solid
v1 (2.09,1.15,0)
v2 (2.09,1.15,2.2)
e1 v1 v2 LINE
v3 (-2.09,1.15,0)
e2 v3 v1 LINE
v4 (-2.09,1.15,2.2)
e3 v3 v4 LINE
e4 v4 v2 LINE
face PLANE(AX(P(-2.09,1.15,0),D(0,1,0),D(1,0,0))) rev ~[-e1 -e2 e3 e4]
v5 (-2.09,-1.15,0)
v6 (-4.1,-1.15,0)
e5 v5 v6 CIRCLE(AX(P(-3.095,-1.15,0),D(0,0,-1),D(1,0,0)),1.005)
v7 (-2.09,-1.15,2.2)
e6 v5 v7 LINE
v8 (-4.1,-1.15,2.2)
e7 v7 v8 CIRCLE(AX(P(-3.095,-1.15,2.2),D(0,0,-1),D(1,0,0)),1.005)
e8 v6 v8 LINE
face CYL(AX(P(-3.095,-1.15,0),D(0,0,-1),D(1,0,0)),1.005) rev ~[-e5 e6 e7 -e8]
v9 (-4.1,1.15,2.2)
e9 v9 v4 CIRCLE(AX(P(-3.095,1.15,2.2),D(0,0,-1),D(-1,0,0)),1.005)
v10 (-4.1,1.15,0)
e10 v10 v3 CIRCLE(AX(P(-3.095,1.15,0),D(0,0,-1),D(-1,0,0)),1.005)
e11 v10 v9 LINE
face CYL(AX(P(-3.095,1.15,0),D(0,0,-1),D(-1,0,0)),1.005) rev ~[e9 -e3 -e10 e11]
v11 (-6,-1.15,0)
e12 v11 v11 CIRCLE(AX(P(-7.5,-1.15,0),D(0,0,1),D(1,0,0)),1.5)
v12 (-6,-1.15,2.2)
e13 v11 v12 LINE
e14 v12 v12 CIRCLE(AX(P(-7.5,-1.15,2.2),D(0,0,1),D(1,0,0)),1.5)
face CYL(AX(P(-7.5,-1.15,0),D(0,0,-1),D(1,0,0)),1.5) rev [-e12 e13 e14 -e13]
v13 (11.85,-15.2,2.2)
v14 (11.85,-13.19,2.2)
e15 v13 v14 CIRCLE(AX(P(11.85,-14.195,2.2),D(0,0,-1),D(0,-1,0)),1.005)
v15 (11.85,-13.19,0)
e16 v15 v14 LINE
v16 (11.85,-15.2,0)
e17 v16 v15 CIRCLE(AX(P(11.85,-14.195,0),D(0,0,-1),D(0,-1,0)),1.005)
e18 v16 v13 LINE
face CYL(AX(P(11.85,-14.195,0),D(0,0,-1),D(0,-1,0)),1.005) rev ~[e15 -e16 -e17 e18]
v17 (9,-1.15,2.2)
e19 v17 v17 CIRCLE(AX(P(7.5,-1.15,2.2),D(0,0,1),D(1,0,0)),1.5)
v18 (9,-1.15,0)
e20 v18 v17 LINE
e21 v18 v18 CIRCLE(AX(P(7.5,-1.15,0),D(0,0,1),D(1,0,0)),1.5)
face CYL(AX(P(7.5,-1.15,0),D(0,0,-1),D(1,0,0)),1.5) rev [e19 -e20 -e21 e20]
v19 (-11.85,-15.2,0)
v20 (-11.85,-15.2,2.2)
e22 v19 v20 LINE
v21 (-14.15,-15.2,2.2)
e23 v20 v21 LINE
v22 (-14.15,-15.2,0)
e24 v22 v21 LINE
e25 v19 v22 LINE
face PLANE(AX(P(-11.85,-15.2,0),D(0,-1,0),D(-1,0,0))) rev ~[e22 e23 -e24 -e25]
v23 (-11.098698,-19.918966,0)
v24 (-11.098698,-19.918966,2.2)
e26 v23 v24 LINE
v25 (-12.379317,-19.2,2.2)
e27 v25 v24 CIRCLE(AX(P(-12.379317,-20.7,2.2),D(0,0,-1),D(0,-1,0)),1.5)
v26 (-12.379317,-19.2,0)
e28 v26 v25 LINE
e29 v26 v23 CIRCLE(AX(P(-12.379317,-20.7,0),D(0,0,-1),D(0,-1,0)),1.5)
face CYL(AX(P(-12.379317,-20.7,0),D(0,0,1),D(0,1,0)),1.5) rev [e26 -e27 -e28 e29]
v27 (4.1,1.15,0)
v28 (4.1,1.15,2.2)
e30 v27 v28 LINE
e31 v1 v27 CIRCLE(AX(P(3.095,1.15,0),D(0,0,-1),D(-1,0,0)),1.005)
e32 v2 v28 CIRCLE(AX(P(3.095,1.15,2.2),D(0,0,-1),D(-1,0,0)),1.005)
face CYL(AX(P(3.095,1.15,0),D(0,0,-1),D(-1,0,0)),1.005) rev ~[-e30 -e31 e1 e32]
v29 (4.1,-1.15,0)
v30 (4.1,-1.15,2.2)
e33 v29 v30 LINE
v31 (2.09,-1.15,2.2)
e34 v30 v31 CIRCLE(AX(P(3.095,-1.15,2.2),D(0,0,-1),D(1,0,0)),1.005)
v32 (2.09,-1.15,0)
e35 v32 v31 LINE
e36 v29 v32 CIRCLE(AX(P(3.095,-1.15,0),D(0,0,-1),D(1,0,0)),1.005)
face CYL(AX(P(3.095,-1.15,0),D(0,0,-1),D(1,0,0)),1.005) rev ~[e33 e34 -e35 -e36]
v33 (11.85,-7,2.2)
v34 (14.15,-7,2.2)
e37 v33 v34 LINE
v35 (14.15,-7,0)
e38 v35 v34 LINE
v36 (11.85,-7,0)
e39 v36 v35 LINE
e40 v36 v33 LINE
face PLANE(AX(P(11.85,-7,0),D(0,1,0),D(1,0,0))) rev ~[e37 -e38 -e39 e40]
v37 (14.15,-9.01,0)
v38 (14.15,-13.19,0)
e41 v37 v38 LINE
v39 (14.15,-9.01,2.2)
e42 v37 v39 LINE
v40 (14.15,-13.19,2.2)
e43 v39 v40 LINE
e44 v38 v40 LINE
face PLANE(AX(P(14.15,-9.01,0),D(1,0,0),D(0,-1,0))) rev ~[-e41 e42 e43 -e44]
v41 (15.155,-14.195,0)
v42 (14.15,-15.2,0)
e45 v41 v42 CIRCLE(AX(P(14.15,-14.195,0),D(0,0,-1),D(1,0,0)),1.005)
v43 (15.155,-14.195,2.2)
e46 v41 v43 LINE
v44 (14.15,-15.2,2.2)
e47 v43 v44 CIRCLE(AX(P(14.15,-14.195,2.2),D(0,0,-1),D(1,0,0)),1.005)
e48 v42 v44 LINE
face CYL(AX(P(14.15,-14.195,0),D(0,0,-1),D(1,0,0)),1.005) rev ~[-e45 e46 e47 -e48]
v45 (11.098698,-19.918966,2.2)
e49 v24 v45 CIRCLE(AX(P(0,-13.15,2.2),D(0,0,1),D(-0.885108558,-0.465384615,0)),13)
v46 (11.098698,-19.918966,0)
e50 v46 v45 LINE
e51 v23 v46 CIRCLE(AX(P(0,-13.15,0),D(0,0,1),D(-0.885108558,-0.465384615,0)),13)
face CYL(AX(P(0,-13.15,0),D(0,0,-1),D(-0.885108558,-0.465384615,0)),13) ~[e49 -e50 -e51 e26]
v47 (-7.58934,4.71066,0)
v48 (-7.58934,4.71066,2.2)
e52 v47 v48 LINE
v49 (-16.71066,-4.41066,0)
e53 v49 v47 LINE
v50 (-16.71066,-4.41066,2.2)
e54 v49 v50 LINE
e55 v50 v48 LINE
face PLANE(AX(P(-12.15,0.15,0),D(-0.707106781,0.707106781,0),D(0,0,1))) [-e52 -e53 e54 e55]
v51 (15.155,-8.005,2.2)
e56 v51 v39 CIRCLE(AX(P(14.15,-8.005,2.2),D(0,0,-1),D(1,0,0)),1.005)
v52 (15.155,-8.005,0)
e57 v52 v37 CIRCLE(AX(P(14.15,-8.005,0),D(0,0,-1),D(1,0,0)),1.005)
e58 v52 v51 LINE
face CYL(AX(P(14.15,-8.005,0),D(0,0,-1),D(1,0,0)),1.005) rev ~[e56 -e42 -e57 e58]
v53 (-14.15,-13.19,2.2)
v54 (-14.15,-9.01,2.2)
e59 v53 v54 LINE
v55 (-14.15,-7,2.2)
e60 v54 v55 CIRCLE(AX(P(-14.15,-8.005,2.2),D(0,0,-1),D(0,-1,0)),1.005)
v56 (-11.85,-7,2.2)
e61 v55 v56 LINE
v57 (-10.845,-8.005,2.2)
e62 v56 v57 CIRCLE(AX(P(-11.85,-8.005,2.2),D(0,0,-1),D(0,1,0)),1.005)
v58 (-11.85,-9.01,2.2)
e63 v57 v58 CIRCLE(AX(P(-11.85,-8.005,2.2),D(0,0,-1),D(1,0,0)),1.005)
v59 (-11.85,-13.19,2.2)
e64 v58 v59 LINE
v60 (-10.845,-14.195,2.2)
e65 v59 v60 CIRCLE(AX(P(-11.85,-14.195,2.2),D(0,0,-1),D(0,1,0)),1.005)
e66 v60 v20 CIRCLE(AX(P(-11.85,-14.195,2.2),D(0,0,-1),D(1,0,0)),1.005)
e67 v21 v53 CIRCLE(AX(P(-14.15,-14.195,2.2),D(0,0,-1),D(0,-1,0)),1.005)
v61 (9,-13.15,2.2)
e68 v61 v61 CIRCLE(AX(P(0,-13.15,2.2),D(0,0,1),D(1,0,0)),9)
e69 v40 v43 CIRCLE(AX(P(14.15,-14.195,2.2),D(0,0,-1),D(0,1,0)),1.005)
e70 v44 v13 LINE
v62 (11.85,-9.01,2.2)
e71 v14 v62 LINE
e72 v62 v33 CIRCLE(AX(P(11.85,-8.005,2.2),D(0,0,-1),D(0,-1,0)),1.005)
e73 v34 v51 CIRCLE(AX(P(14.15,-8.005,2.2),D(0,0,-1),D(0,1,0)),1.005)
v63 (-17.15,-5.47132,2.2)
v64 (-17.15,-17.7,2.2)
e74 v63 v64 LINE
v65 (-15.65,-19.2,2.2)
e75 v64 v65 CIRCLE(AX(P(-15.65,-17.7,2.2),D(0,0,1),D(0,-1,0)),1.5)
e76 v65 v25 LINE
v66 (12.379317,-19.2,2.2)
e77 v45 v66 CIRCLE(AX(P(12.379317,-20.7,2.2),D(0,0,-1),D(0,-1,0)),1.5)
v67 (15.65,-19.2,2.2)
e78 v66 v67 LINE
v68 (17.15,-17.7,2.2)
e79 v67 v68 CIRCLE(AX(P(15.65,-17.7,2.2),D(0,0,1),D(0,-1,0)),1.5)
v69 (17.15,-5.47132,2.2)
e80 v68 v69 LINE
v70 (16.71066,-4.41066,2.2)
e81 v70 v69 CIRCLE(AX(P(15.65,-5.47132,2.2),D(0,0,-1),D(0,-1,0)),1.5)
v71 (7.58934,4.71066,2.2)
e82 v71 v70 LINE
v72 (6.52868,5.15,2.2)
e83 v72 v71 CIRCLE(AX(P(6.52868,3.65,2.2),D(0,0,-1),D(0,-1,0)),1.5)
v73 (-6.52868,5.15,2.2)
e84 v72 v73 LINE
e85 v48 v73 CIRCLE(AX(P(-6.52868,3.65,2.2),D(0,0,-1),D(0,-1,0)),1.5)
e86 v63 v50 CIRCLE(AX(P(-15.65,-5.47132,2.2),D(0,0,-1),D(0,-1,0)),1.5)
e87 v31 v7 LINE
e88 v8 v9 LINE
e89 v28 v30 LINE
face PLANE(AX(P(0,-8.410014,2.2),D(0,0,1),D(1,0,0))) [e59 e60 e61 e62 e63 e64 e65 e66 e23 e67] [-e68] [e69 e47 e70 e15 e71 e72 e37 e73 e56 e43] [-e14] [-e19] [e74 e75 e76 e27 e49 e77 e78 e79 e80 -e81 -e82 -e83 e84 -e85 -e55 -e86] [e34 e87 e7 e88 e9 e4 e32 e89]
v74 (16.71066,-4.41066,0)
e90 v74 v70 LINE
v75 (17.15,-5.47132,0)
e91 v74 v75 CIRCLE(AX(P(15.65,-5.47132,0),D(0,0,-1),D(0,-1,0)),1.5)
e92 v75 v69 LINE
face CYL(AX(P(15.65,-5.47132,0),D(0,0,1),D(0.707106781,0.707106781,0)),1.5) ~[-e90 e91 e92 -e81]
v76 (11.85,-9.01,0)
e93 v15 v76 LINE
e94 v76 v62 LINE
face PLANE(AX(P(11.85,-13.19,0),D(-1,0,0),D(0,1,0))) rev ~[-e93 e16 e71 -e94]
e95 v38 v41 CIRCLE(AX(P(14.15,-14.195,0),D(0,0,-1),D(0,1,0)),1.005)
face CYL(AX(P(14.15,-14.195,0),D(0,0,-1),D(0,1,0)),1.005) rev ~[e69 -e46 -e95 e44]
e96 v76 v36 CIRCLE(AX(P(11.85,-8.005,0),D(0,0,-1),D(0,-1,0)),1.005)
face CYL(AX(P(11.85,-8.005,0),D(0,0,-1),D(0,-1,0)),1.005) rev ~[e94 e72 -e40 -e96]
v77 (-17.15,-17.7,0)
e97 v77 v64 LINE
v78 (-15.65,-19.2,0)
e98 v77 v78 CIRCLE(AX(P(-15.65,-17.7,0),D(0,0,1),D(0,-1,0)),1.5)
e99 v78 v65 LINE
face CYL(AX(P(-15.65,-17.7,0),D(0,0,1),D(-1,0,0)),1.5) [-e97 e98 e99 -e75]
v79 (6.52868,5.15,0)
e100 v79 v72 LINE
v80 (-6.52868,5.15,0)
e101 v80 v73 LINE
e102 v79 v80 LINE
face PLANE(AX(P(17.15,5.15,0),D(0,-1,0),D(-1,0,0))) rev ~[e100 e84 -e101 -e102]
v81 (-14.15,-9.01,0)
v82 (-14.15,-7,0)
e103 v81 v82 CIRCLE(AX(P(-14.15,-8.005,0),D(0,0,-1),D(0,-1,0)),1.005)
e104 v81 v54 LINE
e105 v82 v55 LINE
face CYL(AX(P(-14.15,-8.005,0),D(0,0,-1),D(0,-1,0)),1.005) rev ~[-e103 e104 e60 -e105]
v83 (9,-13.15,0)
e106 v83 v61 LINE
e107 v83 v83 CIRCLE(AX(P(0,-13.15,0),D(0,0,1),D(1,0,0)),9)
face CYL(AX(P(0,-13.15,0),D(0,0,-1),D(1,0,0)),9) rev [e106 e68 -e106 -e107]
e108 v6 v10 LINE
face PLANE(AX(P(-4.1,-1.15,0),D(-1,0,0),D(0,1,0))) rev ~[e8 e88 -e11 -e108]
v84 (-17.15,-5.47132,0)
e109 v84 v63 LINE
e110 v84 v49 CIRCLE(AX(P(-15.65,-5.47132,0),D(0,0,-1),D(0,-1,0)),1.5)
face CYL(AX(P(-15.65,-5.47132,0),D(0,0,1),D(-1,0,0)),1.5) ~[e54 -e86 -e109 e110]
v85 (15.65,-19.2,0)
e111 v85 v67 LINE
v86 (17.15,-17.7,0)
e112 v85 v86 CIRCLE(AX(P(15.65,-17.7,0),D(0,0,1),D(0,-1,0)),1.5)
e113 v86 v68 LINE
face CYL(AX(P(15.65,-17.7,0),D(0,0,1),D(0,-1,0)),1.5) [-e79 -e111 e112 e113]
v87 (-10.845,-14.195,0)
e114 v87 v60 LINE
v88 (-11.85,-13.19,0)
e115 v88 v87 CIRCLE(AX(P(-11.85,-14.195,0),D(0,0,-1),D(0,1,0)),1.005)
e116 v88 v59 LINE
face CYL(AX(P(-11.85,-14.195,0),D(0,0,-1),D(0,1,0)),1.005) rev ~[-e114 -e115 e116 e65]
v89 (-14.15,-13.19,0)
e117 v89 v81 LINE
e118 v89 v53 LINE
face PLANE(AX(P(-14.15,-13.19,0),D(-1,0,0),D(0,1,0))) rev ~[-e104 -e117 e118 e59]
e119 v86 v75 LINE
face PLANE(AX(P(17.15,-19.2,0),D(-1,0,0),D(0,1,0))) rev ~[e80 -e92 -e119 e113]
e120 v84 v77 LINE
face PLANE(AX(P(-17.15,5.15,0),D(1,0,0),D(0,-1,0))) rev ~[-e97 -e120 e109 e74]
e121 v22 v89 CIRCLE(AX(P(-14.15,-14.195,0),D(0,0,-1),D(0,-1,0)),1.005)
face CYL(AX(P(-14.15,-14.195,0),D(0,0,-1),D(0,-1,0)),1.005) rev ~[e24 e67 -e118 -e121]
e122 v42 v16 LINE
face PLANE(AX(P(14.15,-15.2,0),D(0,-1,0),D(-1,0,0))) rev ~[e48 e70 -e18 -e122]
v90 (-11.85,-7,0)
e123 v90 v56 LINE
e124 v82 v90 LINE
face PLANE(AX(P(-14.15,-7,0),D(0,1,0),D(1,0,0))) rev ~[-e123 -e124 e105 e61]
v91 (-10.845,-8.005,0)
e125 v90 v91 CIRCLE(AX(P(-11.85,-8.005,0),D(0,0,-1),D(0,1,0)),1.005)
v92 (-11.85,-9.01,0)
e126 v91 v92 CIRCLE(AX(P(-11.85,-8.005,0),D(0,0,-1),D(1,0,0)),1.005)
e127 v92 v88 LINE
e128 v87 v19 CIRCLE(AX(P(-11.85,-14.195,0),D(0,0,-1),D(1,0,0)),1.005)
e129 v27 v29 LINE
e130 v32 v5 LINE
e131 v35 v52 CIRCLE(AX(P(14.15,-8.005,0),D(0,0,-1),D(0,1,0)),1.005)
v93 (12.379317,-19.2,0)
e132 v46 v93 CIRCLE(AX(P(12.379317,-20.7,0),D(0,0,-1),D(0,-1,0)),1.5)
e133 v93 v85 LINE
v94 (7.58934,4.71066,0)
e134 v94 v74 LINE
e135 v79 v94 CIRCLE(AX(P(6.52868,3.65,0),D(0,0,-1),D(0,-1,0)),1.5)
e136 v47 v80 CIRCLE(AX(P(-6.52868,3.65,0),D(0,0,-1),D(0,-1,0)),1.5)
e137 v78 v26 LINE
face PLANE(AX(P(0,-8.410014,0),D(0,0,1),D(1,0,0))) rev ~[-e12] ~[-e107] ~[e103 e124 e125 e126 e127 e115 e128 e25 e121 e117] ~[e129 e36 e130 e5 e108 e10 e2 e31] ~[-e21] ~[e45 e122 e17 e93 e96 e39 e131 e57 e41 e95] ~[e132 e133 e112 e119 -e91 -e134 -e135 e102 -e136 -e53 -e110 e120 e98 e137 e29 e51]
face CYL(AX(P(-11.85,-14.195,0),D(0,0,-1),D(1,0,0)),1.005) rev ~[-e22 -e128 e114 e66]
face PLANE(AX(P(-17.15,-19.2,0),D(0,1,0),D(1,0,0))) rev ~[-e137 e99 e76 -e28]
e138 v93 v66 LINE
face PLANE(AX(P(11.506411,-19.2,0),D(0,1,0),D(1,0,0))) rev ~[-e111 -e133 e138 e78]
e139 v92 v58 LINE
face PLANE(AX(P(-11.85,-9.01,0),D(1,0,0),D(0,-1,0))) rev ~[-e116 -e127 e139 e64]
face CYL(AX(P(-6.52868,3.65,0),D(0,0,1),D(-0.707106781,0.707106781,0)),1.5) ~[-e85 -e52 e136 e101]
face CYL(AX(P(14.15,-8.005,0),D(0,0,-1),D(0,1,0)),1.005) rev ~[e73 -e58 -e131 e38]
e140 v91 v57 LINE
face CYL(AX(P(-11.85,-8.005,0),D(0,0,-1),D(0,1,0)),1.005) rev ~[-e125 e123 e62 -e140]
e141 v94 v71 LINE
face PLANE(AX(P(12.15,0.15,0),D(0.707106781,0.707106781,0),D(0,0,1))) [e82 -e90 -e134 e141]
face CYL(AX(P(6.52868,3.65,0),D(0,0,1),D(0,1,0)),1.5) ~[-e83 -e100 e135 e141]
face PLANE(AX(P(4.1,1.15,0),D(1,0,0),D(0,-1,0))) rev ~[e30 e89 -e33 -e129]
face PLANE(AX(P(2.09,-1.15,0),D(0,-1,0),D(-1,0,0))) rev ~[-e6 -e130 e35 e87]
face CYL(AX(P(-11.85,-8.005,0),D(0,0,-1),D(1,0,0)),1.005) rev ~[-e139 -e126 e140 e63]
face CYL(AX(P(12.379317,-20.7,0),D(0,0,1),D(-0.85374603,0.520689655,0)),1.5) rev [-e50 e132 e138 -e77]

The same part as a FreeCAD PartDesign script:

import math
import FreeCAD as App
import Part
import Sketcher


def edges_at(feature, points):
    """Names of the edges that pass closest to the given points."""
    edges = feature.Shape.Edges
    near = lambda p: min(range(len(edges)), key=lambda i: edges[i].distToShape(Part.Vertex(*p))[0])
    return sorted({f"Edge{near(p) + 1}" for p in points})

doc = App.newDocument("Part")
body = doc.addObject("PartDesign::Body", "Body")

sketch1 = body.newObject("Sketcher::SketchObject", "Sketch")
sketch1.AttachmentSupport = (doc.getObject("XY_Plane"), [""])
sketch1.MapMode = "FlatFace"
sketch1.addGeometry([
    Part.LineSegment(App.Vector(-17.15, -19.2, 0), App.Vector(-11.506411, -19.2, 0)),
    Part.ArcOfCircle(Part.Circle(App.Vector(0, -13.15, 0), App.Vector(0, 0, 1), 13), math.radians(-152.264883), math.radians(-27.735117)),
    Part.LineSegment(App.Vector(11.506411, -19.2, 0), App.Vector(17.15, -19.2, 0)),
    Part.LineSegment(App.Vector(17.15, -19.2, 0), App.Vector(17.15, 5.15, 0)),
    Part.LineSegment(App.Vector(17.15, 5.15, 0), App.Vector(-17.15, 5.15, 0)),
    Part.LineSegment(App.Vector(-17.15, 5.15, 0), App.Vector(-17.15, -19.2, 0)),
    Part.ArcOfCircle(Part.Circle(App.Vector(-11.85, -14.195, 0), App.Vector(0, 0, 1), 1.005), math.radians(0), math.radians(90)),
    Part.ArcOfCircle(Part.Circle(App.Vector(-11.85, -14.195, 0), App.Vector(0, 0, 1), 1.005), math.radians(-90), math.radians(0)),
    Part.LineSegment(App.Vector(-11.85, -15.2, 0), App.Vector(-14.15, -15.2, 0)),
    Part.ArcOfCircle(Part.Circle(App.Vector(-14.15, -14.195, 0), App.Vector(0, 0, 1), 1.005), math.radians(90), math.radians(270)),
    Part.LineSegment(App.Vector(-14.15, -13.19, 0), App.Vector(-14.15, -9.01, 0)),
    Part.ArcOfCircle(Part.Circle(App.Vector(-14.15, -8.005, 0), App.Vector(0, 0, 1), 1.005), math.radians(90), math.radians(270)),
    Part.LineSegment(App.Vector(-14.15, -7, 0), App.Vector(-11.85, -7, 0)),
    Part.ArcOfCircle(Part.Circle(App.Vector(-11.85, -8.005, 0), App.Vector(0, 0, 1), 1.005), math.radians(0), math.radians(90)),
    Part.ArcOfCircle(Part.Circle(App.Vector(-11.85, -8.005, 0), App.Vector(0, 0, 1), 1.005), math.radians(-90), math.radians(0)),
    Part.LineSegment(App.Vector(-11.85, -9.01, 0), App.Vector(-11.85, -13.19, 0)),
    Part.Circle(App.Vector(0, -13.15, 0), App.Vector(0, 0, 1), 9),
    Part.LineSegment(App.Vector(11.85, -13.19, 0), App.Vector(11.85, -9.01, 0)),
    Part.ArcOfCircle(Part.Circle(App.Vector(11.85, -8.005, 0), App.Vector(0, 0, 1), 1.005), math.radians(90), math.radians(270)),
    Part.LineSegment(App.Vector(11.85, -7, 0), App.Vector(14.15, -7, 0)),
    Part.ArcOfCircle(Part.Circle(App.Vector(14.15, -8.005, 0), App.Vector(0, 0, 1), 1.005), math.radians(0), math.radians(90)),
    Part.ArcOfCircle(Part.Circle(App.Vector(14.15, -8.005, 0), App.Vector(0, 0, 1), 1.005), math.radians(-90), math.radians(0)),
    Part.LineSegment(App.Vector(14.15, -9.01, 0), App.Vector(14.15, -13.19, 0)),
    Part.ArcOfCircle(Part.Circle(App.Vector(14.15, -14.195, 0), App.Vector(0, 0, 1), 1.005), math.radians(0), math.radians(90)),
    Part.ArcOfCircle(Part.Circle(App.Vector(14.15, -14.195, 0), App.Vector(0, 0, 1), 1.005), math.radians(-90), math.radians(0)),
    Part.LineSegment(App.Vector(14.15, -15.2, 0), App.Vector(11.85, -15.2, 0)),
    Part.ArcOfCircle(Part.Circle(App.Vector(11.85, -14.195, 0), App.Vector(0, 0, 1), 1.005), math.radians(90), math.radians(270)),
    Part.Circle(App.Vector(-7.5, -1.15, 0), App.Vector(0, 0, 1), 1.5),
    Part.Circle(App.Vector(7.5, -1.15, 0), App.Vector(0, 0, 1), 1.5),
    Part.ArcOfCircle(Part.Circle(App.Vector(3.095, -1.15, 0), App.Vector(0, 0, 1), 1.005), math.radians(180), math.radians(360)),
    Part.LineSegment(App.Vector(2.09, -1.15, 0), App.Vector(-2.09, -1.15, 0)),
    Part.ArcOfCircle(Part.Circle(App.Vector(-3.095, -1.15, 0), App.Vector(0, 0, 1), 1.005), math.radians(180), math.radians(360)),
    Part.LineSegment(App.Vector(-4.1, -1.15, 0), App.Vector(-4.1, 1.15, 0)),
    Part.ArcOfCircle(Part.Circle(App.Vector(-3.095, 1.15, 0), App.Vector(0, 0, 1), 1.005), math.radians(0), math.radians(180)),
    Part.LineSegment(App.Vector(-2.09, 1.15, 0), App.Vector(2.09, 1.15, 0)),
    Part.ArcOfCircle(Part.Circle(App.Vector(3.095, 1.15, 0), App.Vector(0, 0, 1), 1.005), math.radians(0), math.radians(180)),
    Part.LineSegment(App.Vector(4.1, 1.15, 0), App.Vector(4.1, -1.15, 0)),
], False)
sketch1.addConstraint([
    Sketcher.Constraint("Coincident", 0, 2, 1, 1),
    Sketcher.Constraint("Coincident", 1, 2, 2, 1),
    Sketcher.Constraint("Coincident", 2, 2, 3, 1),
    Sketcher.Constraint("Coincident", 3, 2, 4, 1),
    Sketcher.Constraint("Coincident", 4, 2, 5, 1),
    Sketcher.Constraint("Coincident", 5, 2, 0, 1),
    Sketcher.Constraint("Tangent", 6, 1, 7, 2),
    Sketcher.Constraint("Tangent", 7, 1, 8, 1),
    Sketcher.Constraint("Tangent", 8, 2, 9, 2),
    Sketcher.Constraint("Coincident", 9, 1, 10, 1),
    Sketcher.Constraint("Coincident", 10, 2, 11, 2),
    Sketcher.Constraint("Tangent", 11, 1, 12, 1),
    Sketcher.Constraint("Tangent", 12, 2, 13, 2),
    Sketcher.Constraint("Tangent", 13, 1, 14, 2),
    Sketcher.Constraint("Coincident", 14, 1, 15, 1),
    Sketcher.Constraint("Coincident", 15, 2, 6, 2),
    Sketcher.Constraint("Coincident", 17, 2, 18, 2),
    Sketcher.Constraint("Tangent", 18, 1, 19, 1),
    Sketcher.Constraint("Tangent", 19, 2, 20, 2),
    Sketcher.Constraint("Tangent", 20, 1, 21, 2),
    Sketcher.Constraint("Coincident", 21, 1, 22, 1),
    Sketcher.Constraint("Coincident", 22, 2, 23, 2),
    Sketcher.Constraint("Tangent", 23, 1, 24, 2),
    Sketcher.Constraint("Tangent", 24, 1, 25, 1),
    Sketcher.Constraint("Tangent", 25, 2, 26, 2),
    Sketcher.Constraint("Coincident", 26, 1, 17, 1),
    Sketcher.Constraint("Coincident", 29, 1, 30, 1),
    Sketcher.Constraint("Coincident", 30, 2, 31, 2),
    Sketcher.Constraint("Tangent", 31, 1, 32, 1),
    Sketcher.Constraint("Tangent", 32, 2, 33, 2),
    Sketcher.Constraint("Coincident", 33, 1, 34, 1),
    Sketcher.Constraint("Coincident", 34, 2, 35, 2),
    Sketcher.Constraint("Tangent", 35, 1, 36, 1),
    Sketcher.Constraint("Tangent", 36, 2, 29, 2),
    Sketcher.Constraint("Horizontal", 0),
    Sketcher.Constraint("Horizontal", 2),
    Sketcher.Constraint("Vertical", 3),
    Sketcher.Constraint("Horizontal", 4),
    Sketcher.Constraint("Vertical", 5),
    Sketcher.Constraint("Horizontal", 8),
    Sketcher.Constraint("Vertical", 10),
    Sketcher.Constraint("Horizontal", 12),
    Sketcher.Constraint("Vertical", 15),
    Sketcher.Constraint("Vertical", 17),
    Sketcher.Constraint("Horizontal", 19),
    Sketcher.Constraint("Vertical", 22),
    Sketcher.Constraint("Horizontal", 25),
    Sketcher.Constraint("Horizontal", 30),
    Sketcher.Constraint("Vertical", 32),
    Sketcher.Constraint("Horizontal", 34),
    Sketcher.Constraint("Vertical", 36),
    Sketcher.Constraint("Coincident", 16, 3, 1, 3),
    Sketcher.Constraint("Equal", 6, 7),
    Sketcher.Constraint("Equal", 7, 9),
    Sketcher.Constraint("Equal", 9, 11),
    Sketcher.Constraint("Equal", 11, 13),
    Sketcher.Constraint("Equal", 13, 14),
    Sketcher.Constraint("Equal", 14, 18),
    Sketcher.Constraint("Equal", 18, 20),
    Sketcher.Constraint("Equal", 20, 21),
    Sketcher.Constraint("Equal", 21, 23),
    Sketcher.Constraint("Equal", 23, 24),
    Sketcher.Constraint("Equal", 24, 26),
    Sketcher.Constraint("Equal", 27, 28),
    Sketcher.Constraint("Equal", 26, 29),
    Sketcher.Constraint("Equal", 29, 31),
    Sketcher.Constraint("Equal", 31, 33),
    Sketcher.Constraint("Equal", 33, 35),
    Sketcher.Constraint("Symmetric", 29, 3, 33, 3, -1, 1),
    Sketcher.Constraint("Symmetric", 13, 3, 18, 3, -2),
    Sketcher.Constraint("Symmetric", 9, 3, 23, 3, -2),
    Sketcher.Constraint("Symmetric", 27, 3, 28, 3, -2),
    Sketcher.Constraint("Symmetric", 0, 2, 1, 2, -2),
    Sketcher.Constraint("Horizontal", 28, 3, 29, 3),
    Sketcher.Constraint("Horizontal", 29, 3, 31, 3),
    Sketcher.Constraint("Horizontal", 33, 3, 35, 3),
    Sketcher.Constraint("Horizontal", 26, 3, 6, 1),
    Sketcher.Constraint("Horizontal", 21, 3, 13, 1),
    Sketcher.Constraint("Horizontal", 13, 1, 20, 1),
    Sketcher.Constraint("Horizontal", 6, 1, 23, 1),
    Sketcher.Constraint("Horizontal", 31, 3, 29, 1),
    Sketcher.Constraint("Horizontal", 32, 2, 33, 1),
    Sketcher.Constraint("Vertical", 9, 3, 11, 3),
    Sketcher.Constraint("Vertical", 7, 3, 13, 3),
    Sketcher.Constraint("Vertical", 21, 3, 23, 3),
    Sketcher.Constraint("Vertical", 18, 3, 26, 3),
    Sketcher.Constraint("Vertical", 8, 2, 9, 1),
    Sketcher.Constraint("Vertical", 12, 2, 14, 1),
    Sketcher.Constraint("Vertical", 26, 3, 17, 2),
    Sketcher.Constraint("Vertical", 19, 2, 21, 1),
    Sketcher.Constraint("Equal", 0, 2),
    Sketcher.Constraint("Equal", 34, 10),
    Sketcher.Constraint("Equal", 25, 32),
    Sketcher.Constraint("Diameter", 16, 18.0),
    Sketcher.Constraint("Diameter", 27, 3.0),
    Sketcher.Constraint("Radius", 1, 13.0),
    Sketcher.Constraint("DistanceX", 4, 2, 4, 1, 34.3),
    Sketcher.Constraint("DistanceX", 8, 2, 8, 1, 2.3),
    Sketcher.Constraint("DistanceY", 11, 1, -1, 1, 7.0),
    Sketcher.Constraint("Radius", 6, 1.005),
    Sketcher.Constraint("DistanceX", 13, 3, 20, 3, 26.0),
    Sketcher.Constraint("DistanceY", 16, 3, 28, 3, 12.0),
    Sketcher.Constraint("DistanceY", 35, 3, 3, 2, 4.0),
    Sketcher.Constraint("DistanceY", 0, 2, 7, 1, 4.0),
    Sketcher.Constraint("DistanceX", 30, 2, 30, 1, 4.18),
    Sketcher.Constraint("DistanceX", 27, 3, -1, 1, 7.5),
])
pad1 = body.newObject("PartDesign::Pad", "Pad")
pad1.Profile = sketch1
pad1.Length = 2.2
doc.recompute()

chamfer = body.newObject("PartDesign::Chamfer", "Chamfer")
chamfer.Base = (pad1, edges_at(pad1, [(-17.15, 5.15, 1.1), (17.15, 5.15, 1.1)]))
chamfer.Size = 10
doc.recompute()

fillet = body.newObject("PartDesign::Fillet", "Fillet")
fillet.Base = (chamfer, edges_at(chamfer, [
    (-17.15, -4.85, 1.1),
    (-17.15, -19.2, 1.1),
    (17.15, -19.2, 1.1),
    (11.506, -19.2, 1.1),
    (-11.506, -19.2, 1.1),
    (-7.15, 5.15, 1.1),
    (7.15, 5.15, 1.1),
    (17.15, -4.85, 1.1),
]))
fillet.Radius = 1.5

doc.recompute()
